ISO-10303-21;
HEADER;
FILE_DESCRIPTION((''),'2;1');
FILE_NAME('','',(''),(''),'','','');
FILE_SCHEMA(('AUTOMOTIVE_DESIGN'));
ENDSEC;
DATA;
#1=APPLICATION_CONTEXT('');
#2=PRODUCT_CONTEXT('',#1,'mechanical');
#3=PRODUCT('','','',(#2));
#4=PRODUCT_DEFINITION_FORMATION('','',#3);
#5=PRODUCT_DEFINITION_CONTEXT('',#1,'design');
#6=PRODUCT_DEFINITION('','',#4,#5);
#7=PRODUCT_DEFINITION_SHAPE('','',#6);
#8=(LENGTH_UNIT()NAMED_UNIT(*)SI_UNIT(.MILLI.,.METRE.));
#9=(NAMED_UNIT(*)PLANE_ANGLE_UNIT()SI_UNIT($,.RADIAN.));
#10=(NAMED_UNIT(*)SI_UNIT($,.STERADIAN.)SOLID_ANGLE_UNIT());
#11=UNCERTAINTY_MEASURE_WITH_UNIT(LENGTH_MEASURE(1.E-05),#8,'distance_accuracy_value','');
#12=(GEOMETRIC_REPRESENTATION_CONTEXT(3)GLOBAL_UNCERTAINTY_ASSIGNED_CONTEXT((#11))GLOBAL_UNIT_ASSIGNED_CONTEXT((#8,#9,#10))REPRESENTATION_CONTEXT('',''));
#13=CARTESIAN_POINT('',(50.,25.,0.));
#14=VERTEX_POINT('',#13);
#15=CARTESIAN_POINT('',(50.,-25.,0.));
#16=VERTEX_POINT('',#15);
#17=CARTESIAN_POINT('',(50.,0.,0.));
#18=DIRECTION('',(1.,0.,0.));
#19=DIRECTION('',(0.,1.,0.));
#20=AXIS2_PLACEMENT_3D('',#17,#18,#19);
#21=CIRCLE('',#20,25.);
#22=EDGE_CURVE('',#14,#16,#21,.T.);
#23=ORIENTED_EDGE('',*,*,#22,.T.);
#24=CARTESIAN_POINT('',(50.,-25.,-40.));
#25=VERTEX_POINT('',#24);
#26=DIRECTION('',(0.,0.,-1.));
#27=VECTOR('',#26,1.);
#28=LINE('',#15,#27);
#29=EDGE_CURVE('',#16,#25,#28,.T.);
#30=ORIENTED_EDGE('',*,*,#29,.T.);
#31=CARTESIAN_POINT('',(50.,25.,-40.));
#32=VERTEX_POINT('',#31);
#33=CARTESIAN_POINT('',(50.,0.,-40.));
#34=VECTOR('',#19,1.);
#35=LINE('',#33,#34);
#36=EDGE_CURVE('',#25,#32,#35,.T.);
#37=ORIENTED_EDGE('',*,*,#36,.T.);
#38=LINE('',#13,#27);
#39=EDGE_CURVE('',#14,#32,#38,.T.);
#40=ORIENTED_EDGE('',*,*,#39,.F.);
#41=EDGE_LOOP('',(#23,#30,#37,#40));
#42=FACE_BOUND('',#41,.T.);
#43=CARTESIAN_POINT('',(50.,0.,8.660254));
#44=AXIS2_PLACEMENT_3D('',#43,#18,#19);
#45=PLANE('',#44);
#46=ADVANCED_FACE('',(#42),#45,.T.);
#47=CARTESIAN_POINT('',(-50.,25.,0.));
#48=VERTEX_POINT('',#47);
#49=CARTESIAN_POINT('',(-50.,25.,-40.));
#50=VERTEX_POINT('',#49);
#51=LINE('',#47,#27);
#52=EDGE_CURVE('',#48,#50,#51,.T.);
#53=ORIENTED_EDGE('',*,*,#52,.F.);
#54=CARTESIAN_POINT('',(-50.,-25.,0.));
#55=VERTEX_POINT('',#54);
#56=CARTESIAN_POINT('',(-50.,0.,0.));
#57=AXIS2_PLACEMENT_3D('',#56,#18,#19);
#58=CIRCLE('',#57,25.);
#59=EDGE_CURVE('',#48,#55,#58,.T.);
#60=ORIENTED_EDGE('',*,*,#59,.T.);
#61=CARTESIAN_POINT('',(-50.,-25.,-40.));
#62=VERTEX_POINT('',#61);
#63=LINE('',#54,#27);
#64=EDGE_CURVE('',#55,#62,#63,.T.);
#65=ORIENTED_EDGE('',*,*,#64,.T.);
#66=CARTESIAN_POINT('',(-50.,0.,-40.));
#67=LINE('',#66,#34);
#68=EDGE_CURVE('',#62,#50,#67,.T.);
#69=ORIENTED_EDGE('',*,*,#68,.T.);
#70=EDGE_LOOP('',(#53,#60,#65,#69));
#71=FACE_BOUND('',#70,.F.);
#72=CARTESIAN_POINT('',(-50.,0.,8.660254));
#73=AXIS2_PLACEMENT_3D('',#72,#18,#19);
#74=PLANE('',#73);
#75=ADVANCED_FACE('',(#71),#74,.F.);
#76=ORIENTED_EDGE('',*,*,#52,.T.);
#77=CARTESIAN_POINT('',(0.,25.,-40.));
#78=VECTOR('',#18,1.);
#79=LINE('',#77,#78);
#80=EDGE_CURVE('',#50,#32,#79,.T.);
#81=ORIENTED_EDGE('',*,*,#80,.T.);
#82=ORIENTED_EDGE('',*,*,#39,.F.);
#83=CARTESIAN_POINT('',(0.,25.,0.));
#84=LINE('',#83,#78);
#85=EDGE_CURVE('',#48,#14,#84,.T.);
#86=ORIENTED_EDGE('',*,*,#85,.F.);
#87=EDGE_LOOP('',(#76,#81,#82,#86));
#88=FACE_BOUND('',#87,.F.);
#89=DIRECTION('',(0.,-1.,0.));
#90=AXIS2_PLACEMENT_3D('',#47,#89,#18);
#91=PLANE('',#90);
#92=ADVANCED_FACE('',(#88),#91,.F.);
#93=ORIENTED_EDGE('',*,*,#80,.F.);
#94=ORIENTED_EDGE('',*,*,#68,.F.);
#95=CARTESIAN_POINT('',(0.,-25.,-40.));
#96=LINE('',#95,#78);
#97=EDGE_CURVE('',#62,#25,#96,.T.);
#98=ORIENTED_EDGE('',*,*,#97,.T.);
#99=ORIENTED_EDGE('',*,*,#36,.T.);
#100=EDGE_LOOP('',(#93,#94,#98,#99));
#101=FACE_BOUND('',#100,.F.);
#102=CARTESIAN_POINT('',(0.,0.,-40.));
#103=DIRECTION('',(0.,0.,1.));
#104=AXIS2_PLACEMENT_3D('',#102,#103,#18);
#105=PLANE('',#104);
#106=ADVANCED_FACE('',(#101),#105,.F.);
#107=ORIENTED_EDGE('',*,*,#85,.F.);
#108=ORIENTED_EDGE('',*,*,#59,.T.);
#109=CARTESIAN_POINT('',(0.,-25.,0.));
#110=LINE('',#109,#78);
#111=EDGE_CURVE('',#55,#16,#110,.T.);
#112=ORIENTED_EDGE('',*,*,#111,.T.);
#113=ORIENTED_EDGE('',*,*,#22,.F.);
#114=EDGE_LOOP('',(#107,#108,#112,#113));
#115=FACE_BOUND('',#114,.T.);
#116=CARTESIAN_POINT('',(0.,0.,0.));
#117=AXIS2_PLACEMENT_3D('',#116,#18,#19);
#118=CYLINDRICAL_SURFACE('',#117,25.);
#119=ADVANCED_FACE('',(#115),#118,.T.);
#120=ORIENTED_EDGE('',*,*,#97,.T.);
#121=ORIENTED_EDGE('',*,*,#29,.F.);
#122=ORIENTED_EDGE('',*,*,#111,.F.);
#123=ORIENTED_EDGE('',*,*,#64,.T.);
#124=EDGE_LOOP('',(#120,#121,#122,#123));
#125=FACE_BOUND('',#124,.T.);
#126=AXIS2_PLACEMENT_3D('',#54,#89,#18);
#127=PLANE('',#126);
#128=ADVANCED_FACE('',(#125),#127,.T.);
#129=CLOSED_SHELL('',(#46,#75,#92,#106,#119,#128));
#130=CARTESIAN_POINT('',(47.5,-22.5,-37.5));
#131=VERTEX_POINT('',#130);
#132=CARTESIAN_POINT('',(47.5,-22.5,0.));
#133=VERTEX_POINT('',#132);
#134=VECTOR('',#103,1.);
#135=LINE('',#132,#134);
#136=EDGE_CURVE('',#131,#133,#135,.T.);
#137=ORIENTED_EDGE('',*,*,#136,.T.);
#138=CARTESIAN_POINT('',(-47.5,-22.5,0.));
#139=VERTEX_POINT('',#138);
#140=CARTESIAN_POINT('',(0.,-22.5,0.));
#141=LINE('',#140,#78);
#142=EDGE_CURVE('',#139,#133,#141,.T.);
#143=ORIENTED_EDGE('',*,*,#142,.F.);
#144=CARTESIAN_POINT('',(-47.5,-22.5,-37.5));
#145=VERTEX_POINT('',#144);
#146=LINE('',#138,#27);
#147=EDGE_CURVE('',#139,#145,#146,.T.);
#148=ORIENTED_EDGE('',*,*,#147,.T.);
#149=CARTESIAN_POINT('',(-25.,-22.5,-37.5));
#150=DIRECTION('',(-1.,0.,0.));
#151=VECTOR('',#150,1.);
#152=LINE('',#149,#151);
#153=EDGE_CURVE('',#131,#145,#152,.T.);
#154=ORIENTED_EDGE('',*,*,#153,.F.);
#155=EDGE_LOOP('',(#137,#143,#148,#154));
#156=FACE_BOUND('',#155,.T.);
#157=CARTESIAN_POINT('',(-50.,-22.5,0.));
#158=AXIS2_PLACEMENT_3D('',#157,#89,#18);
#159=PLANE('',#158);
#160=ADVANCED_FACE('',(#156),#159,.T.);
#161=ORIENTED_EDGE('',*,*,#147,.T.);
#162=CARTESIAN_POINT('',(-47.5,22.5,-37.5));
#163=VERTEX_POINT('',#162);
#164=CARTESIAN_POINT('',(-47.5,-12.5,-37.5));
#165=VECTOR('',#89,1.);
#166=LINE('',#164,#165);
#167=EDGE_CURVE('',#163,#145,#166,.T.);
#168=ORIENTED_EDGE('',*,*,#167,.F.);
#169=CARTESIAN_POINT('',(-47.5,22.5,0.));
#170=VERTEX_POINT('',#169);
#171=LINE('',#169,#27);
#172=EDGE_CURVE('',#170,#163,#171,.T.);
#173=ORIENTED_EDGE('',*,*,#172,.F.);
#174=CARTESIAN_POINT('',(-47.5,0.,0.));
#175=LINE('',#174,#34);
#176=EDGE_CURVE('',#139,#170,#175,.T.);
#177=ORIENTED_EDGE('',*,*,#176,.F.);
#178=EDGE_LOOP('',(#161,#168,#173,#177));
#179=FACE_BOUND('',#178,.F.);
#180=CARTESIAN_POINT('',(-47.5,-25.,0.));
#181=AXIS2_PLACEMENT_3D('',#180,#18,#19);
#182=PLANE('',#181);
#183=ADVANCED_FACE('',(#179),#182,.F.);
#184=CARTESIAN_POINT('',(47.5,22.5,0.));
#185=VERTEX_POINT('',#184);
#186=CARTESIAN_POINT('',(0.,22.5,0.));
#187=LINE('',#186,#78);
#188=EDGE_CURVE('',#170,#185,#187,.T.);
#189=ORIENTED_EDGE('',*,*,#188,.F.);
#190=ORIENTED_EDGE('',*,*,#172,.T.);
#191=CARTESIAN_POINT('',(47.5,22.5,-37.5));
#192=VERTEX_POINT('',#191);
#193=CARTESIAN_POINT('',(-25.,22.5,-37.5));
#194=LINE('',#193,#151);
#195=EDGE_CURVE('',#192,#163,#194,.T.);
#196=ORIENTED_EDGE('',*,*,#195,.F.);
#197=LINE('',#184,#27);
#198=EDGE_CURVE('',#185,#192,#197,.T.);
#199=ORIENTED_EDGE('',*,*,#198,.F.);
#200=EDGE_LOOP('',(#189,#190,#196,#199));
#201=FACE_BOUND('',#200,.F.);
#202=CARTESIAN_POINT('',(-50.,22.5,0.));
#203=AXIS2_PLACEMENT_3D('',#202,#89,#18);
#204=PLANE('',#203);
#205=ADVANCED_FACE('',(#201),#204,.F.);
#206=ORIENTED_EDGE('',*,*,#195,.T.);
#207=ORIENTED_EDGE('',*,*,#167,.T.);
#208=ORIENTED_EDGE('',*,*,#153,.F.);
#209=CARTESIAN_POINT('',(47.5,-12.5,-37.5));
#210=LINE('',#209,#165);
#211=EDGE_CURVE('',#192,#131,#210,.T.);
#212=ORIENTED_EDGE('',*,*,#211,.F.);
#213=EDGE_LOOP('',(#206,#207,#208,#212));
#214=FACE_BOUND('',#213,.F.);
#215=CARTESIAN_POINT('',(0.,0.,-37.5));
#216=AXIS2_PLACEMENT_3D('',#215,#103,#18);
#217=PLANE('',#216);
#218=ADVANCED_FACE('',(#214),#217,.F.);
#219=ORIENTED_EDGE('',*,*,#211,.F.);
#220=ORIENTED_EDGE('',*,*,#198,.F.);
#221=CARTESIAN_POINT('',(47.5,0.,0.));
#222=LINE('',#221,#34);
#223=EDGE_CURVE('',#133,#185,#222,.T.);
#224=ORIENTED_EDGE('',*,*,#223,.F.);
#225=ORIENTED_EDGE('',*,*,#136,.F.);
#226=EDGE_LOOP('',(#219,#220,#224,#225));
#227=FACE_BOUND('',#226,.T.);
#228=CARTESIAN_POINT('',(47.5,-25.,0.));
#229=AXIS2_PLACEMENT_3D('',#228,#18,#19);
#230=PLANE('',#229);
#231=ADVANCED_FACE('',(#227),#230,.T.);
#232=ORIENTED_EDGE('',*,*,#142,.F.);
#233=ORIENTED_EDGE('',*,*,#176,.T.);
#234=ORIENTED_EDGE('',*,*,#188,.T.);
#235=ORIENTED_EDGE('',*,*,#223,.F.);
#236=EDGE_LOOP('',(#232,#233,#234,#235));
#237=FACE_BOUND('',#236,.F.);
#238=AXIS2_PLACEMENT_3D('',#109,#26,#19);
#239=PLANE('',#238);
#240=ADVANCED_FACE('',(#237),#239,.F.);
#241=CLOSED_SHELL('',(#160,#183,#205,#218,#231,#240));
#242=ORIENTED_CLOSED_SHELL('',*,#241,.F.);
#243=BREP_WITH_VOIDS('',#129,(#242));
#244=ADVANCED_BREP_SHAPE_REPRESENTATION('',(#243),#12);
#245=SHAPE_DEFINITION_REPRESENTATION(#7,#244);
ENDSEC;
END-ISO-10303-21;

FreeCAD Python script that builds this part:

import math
import FreeCAD as App
import Part
import Sketcher

V = App.Vector
Q = App.Units.Quantity


def faces_at(feature, points):
    """Names of the faces that lie closest to the given points."""
    faces = feature.Shape.Faces
    near = lambda p: min(range(len(faces)), key=lambda i: faces[i].distToShape(Part.Vertex(*p))[0])
    return sorted({f"Face{near(p) + 1}" for p in points})


def add_polygon(sketch, points):
    """Adds a closed chain of lines whose ends are joined by coincident constraints."""
    first, n = sketch.GeometryCount, len(points)
    for a, b in zip(points, points[1:] + points[:1]):
        sketch.addGeometry(Part.LineSegment(App.Vector(*a, 0), App.Vector(*b, 0)), False)
    for i in range(n):
        sketch.addConstraint(Sketcher.Constraint("Coincident", first + i, 2, first + (i + 1) % n, 1))

doc = App.newDocument("Part")
body = doc.addObject("PartDesign::Body", "Body")

# Sketch on XY plane
sketch1 = body.newObject("Sketcher::SketchObject", "Sketch")
sketch1.AttachmentSupport = (doc.getObject("XY_Plane"), [""])
sketch1.MapMode = "FlatFace"
add_polygon(sketch1, [(-50, 25), (-50, -25), (50, -25), (50, 25)])  # lines 0-3
sketch1.addConstraint([
    Sketcher.Constraint("Vertical", 0),
    Sketcher.Constraint("Horizontal", 1),
    Sketcher.Constraint("Vertical", 2),
    Sketcher.Constraint("Horizontal", 3),
    Sketcher.Constraint("Symmetric", 0, 2, 2, 2, -1, 1),
    Sketcher.Constraint("DistanceX", 1, 1, 1, 2, Q("100 mm")),
    Sketcher.Constraint("DistanceY", 0, 2, 0, 1, Q("50 mm")),
])
pad1 = body.newObject("PartDesign::Pad", "Pad")
pad1.Profile = sketch1
pad1.Length = 40
pad1.Reversed = True
doc.recompute()

thickness = body.newObject("PartDesign::Thickness", "Thickness")
thickness.Base = (pad1, faces_at(pad1, [(0, 0, 0)]))
thickness.Value = 2.5
thickness.Reversed = True
thickness.Join = "Arc"

# Sketch on YZ plane
sketch2 = body.newObject("Sketcher::SketchObject", "Sketch001")
sketch2.AttachmentSupport = (doc.getObject("YZ_Plane"), [""])
sketch2.MapMode = "FlatFace"
sketch2.addGeometry([
    Part.LineSegment(V(-25, 0, 0), V(25, 0, 0)),
    Part.ArcOfCircle(Part.Circle(V(0, 0, 0), V(0, 0, 1), 25), math.radians(0), math.radians(180)),
], False)
sketch2.addConstraint([
    Sketcher.Constraint("Coincident", 0, 1, 1, 2),
    Sketcher.Constraint("Coincident", 1, 1, 0, 2),
    Sketcher.Constraint("Horizontal", 0),
    Sketcher.Constraint("Coincident", 1, 3, -1, 1),
    Sketcher.Constraint("PointOnObject", 0, 1, -1),
    Sketcher.Constraint("Radius", 1, Q("25 mm")),
])
pad2 = body.newObject("PartDesign::Pad", "Pad001")
pad2.Profile = sketch2
pad2.Length = 100
pad2.Midplane = True

doc.recompute()
